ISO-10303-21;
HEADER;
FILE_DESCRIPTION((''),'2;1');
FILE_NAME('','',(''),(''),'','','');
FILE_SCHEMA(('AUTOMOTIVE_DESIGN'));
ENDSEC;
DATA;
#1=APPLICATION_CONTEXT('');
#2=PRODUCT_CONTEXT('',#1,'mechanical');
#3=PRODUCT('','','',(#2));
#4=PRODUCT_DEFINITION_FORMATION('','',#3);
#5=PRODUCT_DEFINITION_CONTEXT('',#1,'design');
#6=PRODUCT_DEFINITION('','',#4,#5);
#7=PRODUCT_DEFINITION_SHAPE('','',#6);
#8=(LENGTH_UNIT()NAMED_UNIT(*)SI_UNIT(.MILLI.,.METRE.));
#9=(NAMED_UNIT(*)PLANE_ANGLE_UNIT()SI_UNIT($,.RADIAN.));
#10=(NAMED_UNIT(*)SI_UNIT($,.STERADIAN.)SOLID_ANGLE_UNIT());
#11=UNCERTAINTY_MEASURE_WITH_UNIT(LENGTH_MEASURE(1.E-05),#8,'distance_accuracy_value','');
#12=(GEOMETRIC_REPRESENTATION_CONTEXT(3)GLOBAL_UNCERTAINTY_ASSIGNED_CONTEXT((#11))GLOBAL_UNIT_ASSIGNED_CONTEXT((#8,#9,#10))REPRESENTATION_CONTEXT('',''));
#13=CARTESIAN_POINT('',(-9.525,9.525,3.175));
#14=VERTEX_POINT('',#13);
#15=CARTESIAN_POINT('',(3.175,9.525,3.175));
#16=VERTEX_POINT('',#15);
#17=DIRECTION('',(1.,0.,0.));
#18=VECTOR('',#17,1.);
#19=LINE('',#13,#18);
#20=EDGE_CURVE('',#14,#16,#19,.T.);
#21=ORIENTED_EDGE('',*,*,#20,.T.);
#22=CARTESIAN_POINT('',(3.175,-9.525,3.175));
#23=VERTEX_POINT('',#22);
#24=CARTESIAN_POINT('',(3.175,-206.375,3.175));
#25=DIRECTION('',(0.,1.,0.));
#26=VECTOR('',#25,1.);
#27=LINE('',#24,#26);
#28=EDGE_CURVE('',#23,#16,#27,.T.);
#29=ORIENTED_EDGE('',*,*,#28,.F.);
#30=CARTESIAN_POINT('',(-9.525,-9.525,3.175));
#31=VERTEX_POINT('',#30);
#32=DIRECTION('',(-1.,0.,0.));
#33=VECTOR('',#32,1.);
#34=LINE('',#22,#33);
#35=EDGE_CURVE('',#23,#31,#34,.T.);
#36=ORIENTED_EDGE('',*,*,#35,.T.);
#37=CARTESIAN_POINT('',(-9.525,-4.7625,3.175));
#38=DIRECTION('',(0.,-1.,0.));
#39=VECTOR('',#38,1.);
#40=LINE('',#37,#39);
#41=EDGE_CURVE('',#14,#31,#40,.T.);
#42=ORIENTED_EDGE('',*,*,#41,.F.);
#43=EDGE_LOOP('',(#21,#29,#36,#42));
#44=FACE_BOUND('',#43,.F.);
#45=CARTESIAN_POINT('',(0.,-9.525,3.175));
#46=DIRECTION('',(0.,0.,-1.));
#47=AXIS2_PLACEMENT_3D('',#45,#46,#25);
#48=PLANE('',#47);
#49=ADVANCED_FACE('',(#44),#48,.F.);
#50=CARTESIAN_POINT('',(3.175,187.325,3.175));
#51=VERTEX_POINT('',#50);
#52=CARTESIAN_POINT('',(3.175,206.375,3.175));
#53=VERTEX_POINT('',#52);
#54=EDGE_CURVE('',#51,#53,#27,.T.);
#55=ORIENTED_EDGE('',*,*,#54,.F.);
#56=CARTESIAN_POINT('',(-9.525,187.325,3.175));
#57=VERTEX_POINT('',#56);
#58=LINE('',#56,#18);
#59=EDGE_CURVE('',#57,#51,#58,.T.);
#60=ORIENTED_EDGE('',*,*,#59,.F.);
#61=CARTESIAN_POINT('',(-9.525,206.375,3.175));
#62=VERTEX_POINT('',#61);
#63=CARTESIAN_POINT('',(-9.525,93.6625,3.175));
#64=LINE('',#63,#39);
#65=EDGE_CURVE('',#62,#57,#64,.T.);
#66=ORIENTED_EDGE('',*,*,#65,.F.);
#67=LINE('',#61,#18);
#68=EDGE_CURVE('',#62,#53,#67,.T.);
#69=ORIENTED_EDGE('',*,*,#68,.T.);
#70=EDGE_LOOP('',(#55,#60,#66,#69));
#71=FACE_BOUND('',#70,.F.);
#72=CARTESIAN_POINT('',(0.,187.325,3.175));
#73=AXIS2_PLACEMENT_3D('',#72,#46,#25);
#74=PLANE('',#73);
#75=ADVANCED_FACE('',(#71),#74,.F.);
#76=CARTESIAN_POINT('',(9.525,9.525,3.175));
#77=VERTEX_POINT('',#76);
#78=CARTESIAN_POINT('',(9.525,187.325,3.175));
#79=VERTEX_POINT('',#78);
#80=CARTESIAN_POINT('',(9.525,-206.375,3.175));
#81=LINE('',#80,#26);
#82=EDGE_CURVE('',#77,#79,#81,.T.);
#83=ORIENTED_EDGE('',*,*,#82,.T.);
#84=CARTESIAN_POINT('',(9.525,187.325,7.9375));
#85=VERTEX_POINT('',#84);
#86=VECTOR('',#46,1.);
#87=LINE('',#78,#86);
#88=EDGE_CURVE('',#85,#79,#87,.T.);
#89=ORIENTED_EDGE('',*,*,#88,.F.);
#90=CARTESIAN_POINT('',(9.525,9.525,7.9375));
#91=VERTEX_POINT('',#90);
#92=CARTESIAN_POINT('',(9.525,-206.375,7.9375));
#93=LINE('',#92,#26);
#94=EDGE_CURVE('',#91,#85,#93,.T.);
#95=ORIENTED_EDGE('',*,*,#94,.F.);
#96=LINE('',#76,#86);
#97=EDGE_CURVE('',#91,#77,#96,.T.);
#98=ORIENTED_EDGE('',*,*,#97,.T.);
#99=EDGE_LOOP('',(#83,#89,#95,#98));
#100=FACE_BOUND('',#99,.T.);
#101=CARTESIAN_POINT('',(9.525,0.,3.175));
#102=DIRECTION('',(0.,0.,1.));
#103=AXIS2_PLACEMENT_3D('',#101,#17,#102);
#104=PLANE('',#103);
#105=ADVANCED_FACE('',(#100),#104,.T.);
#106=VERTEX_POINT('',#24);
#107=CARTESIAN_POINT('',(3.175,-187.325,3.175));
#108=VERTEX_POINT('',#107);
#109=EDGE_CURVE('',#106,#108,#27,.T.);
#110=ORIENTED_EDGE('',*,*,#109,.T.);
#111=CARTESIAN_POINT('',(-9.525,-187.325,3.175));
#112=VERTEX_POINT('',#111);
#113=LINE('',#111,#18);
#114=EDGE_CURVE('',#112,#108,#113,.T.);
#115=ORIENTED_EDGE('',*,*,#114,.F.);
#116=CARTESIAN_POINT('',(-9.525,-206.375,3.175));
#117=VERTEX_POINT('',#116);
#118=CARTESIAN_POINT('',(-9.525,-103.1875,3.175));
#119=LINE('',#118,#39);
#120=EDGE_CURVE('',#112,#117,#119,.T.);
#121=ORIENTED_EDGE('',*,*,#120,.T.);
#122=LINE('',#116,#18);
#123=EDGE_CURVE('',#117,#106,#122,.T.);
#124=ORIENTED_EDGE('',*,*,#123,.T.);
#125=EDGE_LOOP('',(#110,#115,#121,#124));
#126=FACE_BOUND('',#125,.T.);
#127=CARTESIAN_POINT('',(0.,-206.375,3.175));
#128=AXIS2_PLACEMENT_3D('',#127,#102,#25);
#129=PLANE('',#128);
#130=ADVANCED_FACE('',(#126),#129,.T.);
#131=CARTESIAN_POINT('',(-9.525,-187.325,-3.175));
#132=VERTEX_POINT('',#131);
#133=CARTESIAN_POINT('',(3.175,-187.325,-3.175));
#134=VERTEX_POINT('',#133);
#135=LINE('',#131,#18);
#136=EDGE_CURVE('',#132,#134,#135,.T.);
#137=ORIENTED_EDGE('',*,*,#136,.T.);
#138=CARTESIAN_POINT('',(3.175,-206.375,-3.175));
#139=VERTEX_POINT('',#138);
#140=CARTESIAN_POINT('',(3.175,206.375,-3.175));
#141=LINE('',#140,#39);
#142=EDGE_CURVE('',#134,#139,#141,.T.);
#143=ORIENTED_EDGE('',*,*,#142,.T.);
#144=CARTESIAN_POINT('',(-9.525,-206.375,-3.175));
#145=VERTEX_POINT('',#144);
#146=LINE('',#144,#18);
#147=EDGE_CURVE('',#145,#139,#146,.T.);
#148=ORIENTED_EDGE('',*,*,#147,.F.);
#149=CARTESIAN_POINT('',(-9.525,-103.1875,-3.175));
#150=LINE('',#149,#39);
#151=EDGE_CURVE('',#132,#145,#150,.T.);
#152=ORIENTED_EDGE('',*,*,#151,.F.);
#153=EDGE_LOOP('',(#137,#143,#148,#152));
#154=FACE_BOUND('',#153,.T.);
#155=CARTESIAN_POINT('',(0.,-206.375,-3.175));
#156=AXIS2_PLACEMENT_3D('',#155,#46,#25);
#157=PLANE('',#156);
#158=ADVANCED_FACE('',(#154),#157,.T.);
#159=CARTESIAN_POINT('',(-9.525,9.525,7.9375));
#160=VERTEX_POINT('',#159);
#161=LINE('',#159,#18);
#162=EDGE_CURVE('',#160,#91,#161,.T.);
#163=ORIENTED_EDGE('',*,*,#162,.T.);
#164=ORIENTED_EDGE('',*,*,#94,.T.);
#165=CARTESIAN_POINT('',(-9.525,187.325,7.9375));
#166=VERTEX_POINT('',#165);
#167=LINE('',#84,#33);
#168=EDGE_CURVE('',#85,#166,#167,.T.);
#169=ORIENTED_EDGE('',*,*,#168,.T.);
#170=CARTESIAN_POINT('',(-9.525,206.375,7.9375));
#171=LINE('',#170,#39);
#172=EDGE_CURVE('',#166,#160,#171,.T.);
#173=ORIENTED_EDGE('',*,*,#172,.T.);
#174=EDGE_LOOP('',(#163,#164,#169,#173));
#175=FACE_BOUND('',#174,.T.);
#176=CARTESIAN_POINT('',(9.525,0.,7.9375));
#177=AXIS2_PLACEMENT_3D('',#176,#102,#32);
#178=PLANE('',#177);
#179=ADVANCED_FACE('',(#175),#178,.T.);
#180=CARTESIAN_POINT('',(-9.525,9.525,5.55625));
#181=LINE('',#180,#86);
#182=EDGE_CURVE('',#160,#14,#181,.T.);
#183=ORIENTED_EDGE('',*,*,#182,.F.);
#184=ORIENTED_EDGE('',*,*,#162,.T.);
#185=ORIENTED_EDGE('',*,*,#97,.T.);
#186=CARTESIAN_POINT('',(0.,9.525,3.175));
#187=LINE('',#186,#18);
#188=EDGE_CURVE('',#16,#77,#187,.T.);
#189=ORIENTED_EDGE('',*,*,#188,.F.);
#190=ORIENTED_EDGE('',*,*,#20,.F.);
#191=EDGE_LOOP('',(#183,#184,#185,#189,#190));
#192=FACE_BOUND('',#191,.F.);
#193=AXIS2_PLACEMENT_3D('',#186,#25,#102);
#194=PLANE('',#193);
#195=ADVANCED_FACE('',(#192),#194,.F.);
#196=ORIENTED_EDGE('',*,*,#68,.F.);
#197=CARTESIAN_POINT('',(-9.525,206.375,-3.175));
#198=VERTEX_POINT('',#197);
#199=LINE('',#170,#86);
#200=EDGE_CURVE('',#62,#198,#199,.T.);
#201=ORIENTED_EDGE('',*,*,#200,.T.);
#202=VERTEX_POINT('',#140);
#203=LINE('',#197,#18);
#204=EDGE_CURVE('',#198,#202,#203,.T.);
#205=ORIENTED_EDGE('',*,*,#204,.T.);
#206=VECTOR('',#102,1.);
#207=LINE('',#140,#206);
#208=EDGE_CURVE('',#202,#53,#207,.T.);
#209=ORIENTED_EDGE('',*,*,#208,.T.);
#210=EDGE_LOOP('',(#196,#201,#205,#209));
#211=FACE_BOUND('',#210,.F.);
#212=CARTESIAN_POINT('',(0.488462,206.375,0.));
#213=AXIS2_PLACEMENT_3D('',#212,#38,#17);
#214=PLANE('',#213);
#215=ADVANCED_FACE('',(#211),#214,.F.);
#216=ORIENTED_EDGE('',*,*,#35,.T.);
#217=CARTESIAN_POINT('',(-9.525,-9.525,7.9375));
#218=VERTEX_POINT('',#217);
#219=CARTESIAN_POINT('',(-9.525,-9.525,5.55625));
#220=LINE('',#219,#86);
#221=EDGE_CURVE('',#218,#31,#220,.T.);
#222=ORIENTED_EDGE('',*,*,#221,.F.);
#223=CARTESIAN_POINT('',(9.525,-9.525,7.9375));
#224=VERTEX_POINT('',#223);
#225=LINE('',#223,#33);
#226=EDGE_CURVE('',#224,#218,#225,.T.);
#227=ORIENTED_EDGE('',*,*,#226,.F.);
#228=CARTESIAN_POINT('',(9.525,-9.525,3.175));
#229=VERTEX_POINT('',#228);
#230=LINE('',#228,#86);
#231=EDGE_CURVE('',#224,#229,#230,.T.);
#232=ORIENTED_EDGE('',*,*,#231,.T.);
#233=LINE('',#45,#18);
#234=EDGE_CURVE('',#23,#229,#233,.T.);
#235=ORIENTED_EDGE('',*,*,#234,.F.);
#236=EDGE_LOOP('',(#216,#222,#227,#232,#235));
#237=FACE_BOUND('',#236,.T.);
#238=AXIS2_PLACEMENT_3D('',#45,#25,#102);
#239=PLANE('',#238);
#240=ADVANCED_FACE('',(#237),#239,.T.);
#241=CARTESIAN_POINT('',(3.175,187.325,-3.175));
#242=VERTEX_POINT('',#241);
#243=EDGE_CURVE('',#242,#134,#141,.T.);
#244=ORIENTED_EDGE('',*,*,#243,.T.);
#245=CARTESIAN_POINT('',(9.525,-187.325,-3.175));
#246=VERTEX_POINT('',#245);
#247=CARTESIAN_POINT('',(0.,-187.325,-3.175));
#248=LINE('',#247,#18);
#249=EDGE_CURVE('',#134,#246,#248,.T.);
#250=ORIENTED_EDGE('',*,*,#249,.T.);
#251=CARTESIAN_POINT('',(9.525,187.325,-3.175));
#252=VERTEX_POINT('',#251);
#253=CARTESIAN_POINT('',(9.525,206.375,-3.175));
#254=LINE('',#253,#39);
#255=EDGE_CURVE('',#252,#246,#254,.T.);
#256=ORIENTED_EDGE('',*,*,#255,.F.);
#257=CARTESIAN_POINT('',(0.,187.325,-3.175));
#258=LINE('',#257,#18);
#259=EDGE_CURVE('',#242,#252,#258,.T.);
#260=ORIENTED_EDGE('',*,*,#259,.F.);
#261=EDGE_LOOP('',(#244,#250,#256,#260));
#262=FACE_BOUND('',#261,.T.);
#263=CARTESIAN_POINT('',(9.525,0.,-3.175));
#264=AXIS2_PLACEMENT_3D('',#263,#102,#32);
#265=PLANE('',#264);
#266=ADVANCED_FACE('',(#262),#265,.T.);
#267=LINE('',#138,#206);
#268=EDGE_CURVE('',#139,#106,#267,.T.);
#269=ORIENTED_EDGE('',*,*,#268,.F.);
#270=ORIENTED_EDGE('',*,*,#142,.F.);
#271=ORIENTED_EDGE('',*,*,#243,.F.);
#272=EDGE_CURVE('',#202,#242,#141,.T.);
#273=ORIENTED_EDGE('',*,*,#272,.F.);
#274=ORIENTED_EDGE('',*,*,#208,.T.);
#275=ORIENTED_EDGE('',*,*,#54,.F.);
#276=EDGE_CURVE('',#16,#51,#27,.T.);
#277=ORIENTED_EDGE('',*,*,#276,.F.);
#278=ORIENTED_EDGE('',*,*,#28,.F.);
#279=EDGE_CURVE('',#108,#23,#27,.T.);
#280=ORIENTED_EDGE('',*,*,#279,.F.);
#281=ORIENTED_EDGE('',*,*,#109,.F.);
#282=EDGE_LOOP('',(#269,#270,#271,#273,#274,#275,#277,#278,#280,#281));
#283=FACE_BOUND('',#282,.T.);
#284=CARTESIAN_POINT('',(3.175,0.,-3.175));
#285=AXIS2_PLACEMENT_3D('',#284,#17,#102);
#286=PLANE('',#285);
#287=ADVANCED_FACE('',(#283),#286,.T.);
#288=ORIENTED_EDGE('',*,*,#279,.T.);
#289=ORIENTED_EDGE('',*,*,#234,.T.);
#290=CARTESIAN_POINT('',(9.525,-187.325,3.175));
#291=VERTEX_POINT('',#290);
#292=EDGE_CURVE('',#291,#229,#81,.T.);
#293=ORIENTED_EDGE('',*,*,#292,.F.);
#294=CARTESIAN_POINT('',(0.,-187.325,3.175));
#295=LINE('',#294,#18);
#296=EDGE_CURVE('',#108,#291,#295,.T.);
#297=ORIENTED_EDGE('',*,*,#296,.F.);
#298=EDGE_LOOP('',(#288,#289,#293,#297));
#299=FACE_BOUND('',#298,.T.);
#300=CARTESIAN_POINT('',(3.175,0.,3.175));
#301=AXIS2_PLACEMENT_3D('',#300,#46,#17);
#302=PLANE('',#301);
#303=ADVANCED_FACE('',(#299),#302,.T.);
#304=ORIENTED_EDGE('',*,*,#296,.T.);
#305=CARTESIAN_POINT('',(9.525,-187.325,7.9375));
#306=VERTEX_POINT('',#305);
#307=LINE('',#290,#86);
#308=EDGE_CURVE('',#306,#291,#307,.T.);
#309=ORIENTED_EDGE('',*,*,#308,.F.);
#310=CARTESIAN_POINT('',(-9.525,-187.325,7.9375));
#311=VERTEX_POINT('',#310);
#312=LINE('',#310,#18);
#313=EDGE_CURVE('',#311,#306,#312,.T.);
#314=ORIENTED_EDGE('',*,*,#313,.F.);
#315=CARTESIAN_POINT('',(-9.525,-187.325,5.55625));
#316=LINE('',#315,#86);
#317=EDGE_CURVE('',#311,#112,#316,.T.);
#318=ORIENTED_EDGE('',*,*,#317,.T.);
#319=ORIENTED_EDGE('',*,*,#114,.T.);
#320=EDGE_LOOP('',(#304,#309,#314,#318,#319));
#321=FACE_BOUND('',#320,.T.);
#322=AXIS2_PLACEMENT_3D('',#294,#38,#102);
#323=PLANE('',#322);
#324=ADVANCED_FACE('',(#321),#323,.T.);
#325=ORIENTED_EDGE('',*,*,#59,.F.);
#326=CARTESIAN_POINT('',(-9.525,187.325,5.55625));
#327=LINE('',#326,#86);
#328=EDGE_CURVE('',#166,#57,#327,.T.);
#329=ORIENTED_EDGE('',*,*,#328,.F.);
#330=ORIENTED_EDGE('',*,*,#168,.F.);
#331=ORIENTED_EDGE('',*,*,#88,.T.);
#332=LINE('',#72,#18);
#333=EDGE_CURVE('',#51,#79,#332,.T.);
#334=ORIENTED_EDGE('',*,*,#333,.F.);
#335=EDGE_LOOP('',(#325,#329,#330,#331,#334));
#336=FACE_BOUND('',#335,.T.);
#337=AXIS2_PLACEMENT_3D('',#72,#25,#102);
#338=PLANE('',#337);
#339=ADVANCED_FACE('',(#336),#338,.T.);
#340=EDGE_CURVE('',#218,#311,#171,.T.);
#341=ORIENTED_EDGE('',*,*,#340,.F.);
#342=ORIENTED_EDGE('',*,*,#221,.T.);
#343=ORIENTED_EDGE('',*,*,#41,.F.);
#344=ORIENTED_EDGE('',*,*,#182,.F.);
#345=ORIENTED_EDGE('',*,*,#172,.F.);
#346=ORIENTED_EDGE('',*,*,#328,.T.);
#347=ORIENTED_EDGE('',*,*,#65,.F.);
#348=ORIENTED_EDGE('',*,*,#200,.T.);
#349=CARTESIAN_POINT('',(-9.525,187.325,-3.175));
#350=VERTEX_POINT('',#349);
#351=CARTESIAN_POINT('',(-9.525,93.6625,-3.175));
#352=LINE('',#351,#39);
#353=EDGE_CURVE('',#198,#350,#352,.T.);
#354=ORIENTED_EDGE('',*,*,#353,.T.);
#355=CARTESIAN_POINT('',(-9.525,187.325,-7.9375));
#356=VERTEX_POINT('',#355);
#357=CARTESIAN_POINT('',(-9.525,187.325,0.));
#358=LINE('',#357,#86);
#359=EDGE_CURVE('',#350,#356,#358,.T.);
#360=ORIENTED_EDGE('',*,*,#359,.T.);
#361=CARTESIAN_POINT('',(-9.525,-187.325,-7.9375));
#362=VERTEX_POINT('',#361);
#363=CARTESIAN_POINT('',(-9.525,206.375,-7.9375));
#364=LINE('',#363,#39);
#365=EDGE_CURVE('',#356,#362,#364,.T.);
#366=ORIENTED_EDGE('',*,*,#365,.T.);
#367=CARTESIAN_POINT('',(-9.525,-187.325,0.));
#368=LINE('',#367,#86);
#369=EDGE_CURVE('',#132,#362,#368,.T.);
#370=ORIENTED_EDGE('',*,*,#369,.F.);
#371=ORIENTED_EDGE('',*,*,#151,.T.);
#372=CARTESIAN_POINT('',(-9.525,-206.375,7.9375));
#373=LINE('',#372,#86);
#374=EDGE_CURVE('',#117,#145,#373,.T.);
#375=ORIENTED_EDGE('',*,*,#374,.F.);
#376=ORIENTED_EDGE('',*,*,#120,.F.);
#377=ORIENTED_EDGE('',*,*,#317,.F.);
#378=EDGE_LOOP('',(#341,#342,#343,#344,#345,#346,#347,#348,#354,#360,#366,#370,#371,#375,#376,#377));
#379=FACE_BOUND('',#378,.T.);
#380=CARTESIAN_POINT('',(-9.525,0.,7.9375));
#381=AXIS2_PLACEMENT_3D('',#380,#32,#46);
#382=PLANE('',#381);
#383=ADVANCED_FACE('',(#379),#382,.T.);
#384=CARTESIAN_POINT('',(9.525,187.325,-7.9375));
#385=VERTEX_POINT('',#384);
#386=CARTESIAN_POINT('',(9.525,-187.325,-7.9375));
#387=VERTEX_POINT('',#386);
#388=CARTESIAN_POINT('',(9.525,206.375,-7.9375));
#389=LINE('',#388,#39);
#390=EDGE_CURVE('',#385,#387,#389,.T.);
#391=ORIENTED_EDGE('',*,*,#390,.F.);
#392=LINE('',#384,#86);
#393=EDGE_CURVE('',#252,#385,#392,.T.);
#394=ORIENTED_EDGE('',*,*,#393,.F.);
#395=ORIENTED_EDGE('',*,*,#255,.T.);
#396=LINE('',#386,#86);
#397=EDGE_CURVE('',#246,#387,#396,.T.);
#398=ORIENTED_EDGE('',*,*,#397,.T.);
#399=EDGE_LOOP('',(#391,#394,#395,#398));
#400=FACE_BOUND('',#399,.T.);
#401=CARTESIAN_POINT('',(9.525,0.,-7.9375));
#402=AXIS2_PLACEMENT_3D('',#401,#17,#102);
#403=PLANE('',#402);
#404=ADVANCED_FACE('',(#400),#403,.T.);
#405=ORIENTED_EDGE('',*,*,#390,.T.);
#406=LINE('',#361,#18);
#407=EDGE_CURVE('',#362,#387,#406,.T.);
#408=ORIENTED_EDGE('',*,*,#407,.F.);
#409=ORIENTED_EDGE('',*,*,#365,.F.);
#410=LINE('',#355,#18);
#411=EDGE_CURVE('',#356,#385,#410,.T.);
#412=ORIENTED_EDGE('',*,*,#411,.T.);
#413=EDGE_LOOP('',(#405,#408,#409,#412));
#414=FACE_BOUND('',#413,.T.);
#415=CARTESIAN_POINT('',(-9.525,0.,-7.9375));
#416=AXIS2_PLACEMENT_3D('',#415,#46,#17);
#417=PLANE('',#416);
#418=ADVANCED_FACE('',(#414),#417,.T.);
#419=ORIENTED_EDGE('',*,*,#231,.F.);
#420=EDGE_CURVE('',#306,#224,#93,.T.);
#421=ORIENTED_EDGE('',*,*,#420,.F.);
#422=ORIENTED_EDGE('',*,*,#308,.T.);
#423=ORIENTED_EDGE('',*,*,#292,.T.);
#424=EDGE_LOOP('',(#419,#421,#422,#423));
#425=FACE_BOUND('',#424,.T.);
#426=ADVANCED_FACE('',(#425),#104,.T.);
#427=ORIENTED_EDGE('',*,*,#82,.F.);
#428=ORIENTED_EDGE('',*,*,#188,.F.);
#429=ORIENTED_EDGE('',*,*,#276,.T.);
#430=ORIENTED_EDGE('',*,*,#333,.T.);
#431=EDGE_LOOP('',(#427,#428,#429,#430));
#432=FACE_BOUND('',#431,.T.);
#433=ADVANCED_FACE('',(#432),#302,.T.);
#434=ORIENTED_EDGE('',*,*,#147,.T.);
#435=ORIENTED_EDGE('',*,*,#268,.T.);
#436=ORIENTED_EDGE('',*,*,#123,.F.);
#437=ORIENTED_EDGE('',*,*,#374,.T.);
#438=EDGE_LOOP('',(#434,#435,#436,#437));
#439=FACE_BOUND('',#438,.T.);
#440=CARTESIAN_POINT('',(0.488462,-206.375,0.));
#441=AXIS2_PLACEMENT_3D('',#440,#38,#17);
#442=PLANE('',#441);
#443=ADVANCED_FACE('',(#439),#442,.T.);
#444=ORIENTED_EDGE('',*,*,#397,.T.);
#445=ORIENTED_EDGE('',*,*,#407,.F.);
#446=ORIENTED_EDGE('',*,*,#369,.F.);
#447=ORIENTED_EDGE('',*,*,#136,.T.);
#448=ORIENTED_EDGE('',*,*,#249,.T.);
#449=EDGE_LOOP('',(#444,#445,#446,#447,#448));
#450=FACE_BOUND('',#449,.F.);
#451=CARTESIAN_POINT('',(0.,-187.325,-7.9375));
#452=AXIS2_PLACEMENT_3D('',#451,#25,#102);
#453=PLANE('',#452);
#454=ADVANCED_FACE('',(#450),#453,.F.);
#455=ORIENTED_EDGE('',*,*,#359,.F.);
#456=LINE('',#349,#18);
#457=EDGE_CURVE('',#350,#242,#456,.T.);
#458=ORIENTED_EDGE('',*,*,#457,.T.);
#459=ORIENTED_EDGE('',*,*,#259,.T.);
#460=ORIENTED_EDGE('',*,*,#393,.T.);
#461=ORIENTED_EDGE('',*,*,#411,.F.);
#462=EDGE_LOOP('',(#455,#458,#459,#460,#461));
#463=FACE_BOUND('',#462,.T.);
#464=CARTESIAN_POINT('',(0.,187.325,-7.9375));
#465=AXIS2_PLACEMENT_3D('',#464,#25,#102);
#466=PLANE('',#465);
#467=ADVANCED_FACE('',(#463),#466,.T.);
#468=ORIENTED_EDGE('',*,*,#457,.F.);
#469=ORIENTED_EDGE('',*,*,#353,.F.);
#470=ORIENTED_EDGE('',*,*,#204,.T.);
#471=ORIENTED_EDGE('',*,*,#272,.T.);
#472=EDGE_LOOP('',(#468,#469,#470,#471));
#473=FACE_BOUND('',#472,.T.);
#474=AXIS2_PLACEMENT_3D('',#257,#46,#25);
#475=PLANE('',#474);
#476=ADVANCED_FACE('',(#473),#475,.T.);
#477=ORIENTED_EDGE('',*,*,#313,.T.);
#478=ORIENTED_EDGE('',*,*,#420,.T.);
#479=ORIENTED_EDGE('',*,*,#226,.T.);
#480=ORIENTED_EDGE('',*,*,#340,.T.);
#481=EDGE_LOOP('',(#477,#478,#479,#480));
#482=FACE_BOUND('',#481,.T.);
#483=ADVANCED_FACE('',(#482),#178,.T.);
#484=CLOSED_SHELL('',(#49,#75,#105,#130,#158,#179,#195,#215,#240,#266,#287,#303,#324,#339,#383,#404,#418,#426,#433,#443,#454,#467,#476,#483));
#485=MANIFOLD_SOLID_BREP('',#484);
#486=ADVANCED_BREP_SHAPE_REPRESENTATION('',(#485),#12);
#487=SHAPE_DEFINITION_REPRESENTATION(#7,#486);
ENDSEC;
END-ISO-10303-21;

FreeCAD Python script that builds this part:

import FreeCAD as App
import Part
import Sketcher

V = App.Vector
Q = App.Units.Quantity


def add_polygon(sketch, points):
    """Adds a closed chain of lines whose ends are joined by coincident constraints."""
    first, n = sketch.GeometryCount, len(points)
    for a, b in zip(points, points[1:] + points[:1]):
        sketch.addGeometry(Part.LineSegment(App.Vector(*a, 0), App.Vector(*b, 0)), False)
    for i in range(n):
        sketch.addConstraint(Sketcher.Constraint("Coincident", first + i, 2, first + (i + 1) % n, 1))

doc = App.newDocument("Part")
body = doc.addObject("PartDesign::Body", "Body")

# Sketch on XZ plane
sketch1 = body.newObject("Sketcher::SketchObject", "Sketch")
sketch1.AttachmentSupport = (doc.getObject("XZ_Plane"), [""])
sketch1.MapMode = "FlatFace"
add_polygon(sketch1, [(9.5, 7.9), (-9.5, 7.9), (-9.5, -7.9), (9.5, -7.9), (9.5, -3.2), (3.2, -3.2), (3.2, 3.2), (9.5, 3.2)])  # lines 0-7
sketch1.addConstraint([
    Sketcher.Constraint("Horizontal", 0),
    Sketcher.Constraint("Vertical", 1),
    Sketcher.Constraint("Horizontal", 2),
    Sketcher.Constraint("Vertical", 3),
    Sketcher.Constraint("Horizontal", 4),
    Sketcher.Constraint("Vertical", 5),
    Sketcher.Constraint("Horizontal", 6),
    Sketcher.Constraint("Vertical", 7),
    Sketcher.Constraint("Symmetric", 0, 2, 2, 2, -1, 1),
    Sketcher.Constraint("Symmetric", 3, 2, 6, 2, -1),
    Sketcher.Constraint("Equal", 6, 5),
    Sketcher.Constraint("DistanceX", 0, 2, 0, 1, Q("0.75 in")),
    Sketcher.Constraint("DistanceX", 4, 2, 4, 1, Q("0.25 in")),
    Sketcher.Constraint("DistanceY", 1, 2, 1, 1, Q("0.625 in")),
])
pad1 = body.newObject("PartDesign::Pad", "Pad")
pad1.Profile = sketch1
pad1.Length = Q("16.25 in")
pad1.Midplane = True

# Sketch on YZ plane
sketch2 = body.newObject("Sketcher::SketchObject", "Sketch001")
sketch2.AttachmentSupport = (doc.getObject("YZ_Plane"), [""])
sketch2.MapMode = "FlatFace"
add_polygon(sketch2, [(-206.4, 7.9), (-206.4, 3.2), (-187.3, 3.2), (-187.3, 7.9)])  # lines 0-3
add_polygon(sketch2, [(-206.4, -3.2), (-206.4, -7.9), (-187.3, -7.9), (-187.3, -3.2)])  # lines 4-7
add_polygon(sketch2, [(187.3, 7.9), (187.3, 3.2), (206.4, 3.2), (206.4, 7.9)])  # lines 8-11
add_polygon(sketch2, [(187.3, -3.2), (187.3, -7.9), (206.4, -7.9), (206.4, -3.2)])  # lines 12-15
add_polygon(sketch2, [(-9.5, 7.9), (-9.5, 3.2), (9.5, 3.2), (9.5, 7.9)])  # lines 16-19
sketch2.addConstraint([
    Sketcher.Constraint("Vertical", 0),
    Sketcher.Constraint("Horizontal", 1),
    Sketcher.Constraint("Vertical", 2),
    Sketcher.Constraint("Horizontal", 3),
    Sketcher.Constraint("Vertical", 4),
    Sketcher.Constraint("Horizontal", 5),
    Sketcher.Constraint("Vertical", 6),
    Sketcher.Constraint("Horizontal", 7),
    Sketcher.Constraint("Vertical", 8),
    Sketcher.Constraint("Horizontal", 9),
    Sketcher.Constraint("Vertical", 10),
    Sketcher.Constraint("Horizontal", 11),
    Sketcher.Constraint("Vertical", 12),
    Sketcher.Constraint("Horizontal", 13),
    Sketcher.Constraint("Vertical", 14),
    Sketcher.Constraint("Horizontal", 15),
    Sketcher.Constraint("Vertical", 16),
    Sketcher.Constraint("Horizontal", 17),
    Sketcher.Constraint("Vertical", 18),
    Sketcher.Constraint("Horizontal", 19),
    Sketcher.Constraint("Symmetric", 6, 2, 8, 2, -1, 1),
    Sketcher.Constraint("Symmetric", 4, 2, 10, 2, -1, 1),
    Sketcher.Constraint("Symmetric", 2, 2, 12, 2, -1, 1),
    Sketcher.Constraint("Symmetric", 0, 2, 14, 2, -1, 1),
    Sketcher.Constraint("Symmetric", 1, 2, 8, 2, -2),
    Sketcher.Constraint("Symmetric", 3, 2, 10, 2, -2),
    Sketcher.Constraint("Horizontal", 9, 2, 16, 2),
    Sketcher.Constraint("Horizontal", 11, 2, 18, 2),
    Sketcher.Constraint("Equal", 15, 17),
    Sketcher.Constraint("DistanceX", 1, 2, 16, 2, Q("7 in")),
    Sketcher.Constraint("DistanceX", 17, 2, 8, 2, Q("7 in")),
    Sketcher.Constraint("DistanceX", 1, 1, 1, 2, Q("0.75 in")),
    Sketcher.Constraint("DistanceY", 0, 2, 0, 1, Q("0.1875 in")),
    Sketcher.Constraint("DistanceY", 6, 2, 1, 2, Q("0.25 in")),
])
pocket1 = body.newObject("PartDesign::Pocket", "Pocket")
pocket1.Profile = sketch2
pocket1.Type = "ThroughAll"
pocket1.Midplane = True

doc.recompute()
